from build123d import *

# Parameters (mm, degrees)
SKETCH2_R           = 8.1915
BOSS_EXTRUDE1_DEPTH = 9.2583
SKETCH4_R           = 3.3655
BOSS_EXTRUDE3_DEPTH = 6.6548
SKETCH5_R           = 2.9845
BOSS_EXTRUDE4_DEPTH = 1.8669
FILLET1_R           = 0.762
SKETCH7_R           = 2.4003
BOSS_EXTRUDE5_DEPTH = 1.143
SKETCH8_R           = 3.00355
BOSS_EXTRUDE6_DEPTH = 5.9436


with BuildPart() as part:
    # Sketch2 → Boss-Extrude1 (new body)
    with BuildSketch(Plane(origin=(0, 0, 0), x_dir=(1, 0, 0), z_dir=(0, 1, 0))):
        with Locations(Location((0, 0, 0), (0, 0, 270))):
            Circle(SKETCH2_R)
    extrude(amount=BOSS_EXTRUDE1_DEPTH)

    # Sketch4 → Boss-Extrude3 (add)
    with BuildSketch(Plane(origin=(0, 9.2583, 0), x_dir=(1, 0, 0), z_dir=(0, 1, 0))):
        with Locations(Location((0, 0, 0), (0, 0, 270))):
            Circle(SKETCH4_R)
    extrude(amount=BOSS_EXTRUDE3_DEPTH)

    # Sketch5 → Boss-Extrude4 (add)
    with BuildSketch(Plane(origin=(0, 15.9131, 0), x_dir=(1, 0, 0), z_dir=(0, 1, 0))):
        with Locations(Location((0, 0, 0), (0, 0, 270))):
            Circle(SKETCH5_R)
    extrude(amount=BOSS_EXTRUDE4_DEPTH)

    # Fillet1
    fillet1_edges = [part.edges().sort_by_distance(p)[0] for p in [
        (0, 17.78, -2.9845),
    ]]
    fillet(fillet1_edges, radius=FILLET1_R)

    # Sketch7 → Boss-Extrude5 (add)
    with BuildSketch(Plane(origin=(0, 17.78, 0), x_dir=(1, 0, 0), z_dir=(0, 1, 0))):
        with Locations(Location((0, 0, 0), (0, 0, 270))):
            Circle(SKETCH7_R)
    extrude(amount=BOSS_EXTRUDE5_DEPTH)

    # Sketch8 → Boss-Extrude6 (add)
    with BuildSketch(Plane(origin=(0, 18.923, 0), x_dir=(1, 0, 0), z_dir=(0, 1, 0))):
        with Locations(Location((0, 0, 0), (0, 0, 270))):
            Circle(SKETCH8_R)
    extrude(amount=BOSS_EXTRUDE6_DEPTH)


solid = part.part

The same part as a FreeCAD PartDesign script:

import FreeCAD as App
import Part
import Sketcher

V = App.Vector
Q = App.Units.Quantity


def edges_at(feature, points):
    """Names of the edges that pass closest to the given points."""
    edges = feature.Shape.Edges
    near = lambda p: min(range(len(edges)), key=lambda i: edges[i].distToShape(Part.Vertex(*p))[0])
    return sorted({f"Edge{near(p) + 1}" for p in points})

doc = App.newDocument("Part")
body = doc.addObject("PartDesign::Body", "Body")

# Sketch on XZ plane
sketch1 = doc.addObject("Sketcher::SketchObject", "Sketch")
body.addObject(sketch1)
sketch1.AttachmentSupport = (doc.XZ_Plane, [""])
sketch1.MapMode = "FlatFace"
sketch1.addGeometry(Part.Circle(V(0, 0, 0), V(0, 0, 1), 8.1915), False)
sketch1.addConstraint(Sketcher.Constraint("Coincident", 0, 3, -1, 1))
sketch1.addConstraint(Sketcher.Constraint("Diameter", 0, Q("0.645 in")))
pad1 = doc.addObject("PartDesign::Pad", "Pad")
body.addObject(pad1)
pad1.Profile = sketch1
pad1.Length = Q("0.3645 in")
pad1.Reversed = True

# Sketch on XZ plane
sketch2 = doc.addObject("Sketcher::SketchObject", "Sketch001")
body.addObject(sketch2)
sketch2.AttachmentSupport = (doc.XZ_Plane, [""])
sketch2.MapMode = "FlatFace"
sketch2.AttachmentOffset = App.Placement(V(0, 0, -0.3645 * 25.4), App.Rotation())
sketch2.addGeometry(Part.Circle(V(0, 0, 0), V(0, 0, 1), 3.3655), False)
sketch2.addConstraint(Sketcher.Constraint("Coincident", 0, 3, -1, 1))
sketch2.addConstraint(Sketcher.Constraint("Diameter", 0, Q("0.265 in")))
pad2 = doc.addObject("PartDesign::Pad", "Pad001")
body.addObject(pad2)
pad2.Profile = sketch2
pad2.Length = Q("0.262 in")
pad2.Reversed = True

# Sketch on XZ plane
sketch3 = doc.addObject("Sketcher::SketchObject", "Sketch002")
body.addObject(sketch3)
sketch3.AttachmentSupport = (doc.XZ_Plane, [""])
sketch3.MapMode = "FlatFace"
sketch3.AttachmentOffset = App.Placement(V(0, 0, -0.6265 * 25.4), App.Rotation())
sketch3.addGeometry(Part.Circle(V(0, 0, 0), V(0, 0, 1), 2.9845), False)
sketch3.addConstraint(Sketcher.Constraint("Coincident", 0, 3, -1, 1))
sketch3.addConstraint(Sketcher.Constraint("Diameter", 0, Q("0.235 in")))
pad3 = doc.addObject("PartDesign::Pad", "Pad002")
body.addObject(pad3)
pad3.Profile = sketch3
pad3.Length = Q("0.0735 in")
pad3.Reversed = True
doc.recompute()

fillet = doc.addObject("PartDesign::Fillet", "Fillet")
body.addObject(fillet)
fillet.Base = (pad3, edges_at(pad3, [(0, 17.78, -2.985)]))
fillet.Radius = Q("0.03 in")

# Sketch on XZ plane
sketch4 = doc.addObject("Sketcher::SketchObject", "Sketch003")
body.addObject(sketch4)
sketch4.AttachmentSupport = (doc.XZ_Plane, [""])
sketch4.MapMode = "FlatFace"
sketch4.AttachmentOffset = App.Placement(V(0, 0, -0.7 * 25.4), App.Rotation())
sketch4.addGeometry(Part.Circle(V(0, 0, 0), V(0, 0, 1), 2.4003), False)
sketch4.addConstraint(Sketcher.Constraint("Coincident", 0, 3, -1, 1))
sketch4.addConstraint(Sketcher.Constraint("Diameter", 0, Q("0.189 in")))
pad4 = doc.addObject("PartDesign::Pad", "Pad003")
body.addObject(pad4)
pad4.Profile = sketch4
pad4.Length = Q("0.045 in")
pad4.Reversed = True

# Sketch on XZ plane
sketch5 = doc.addObject("Sketcher::SketchObject", "Sketch004")
body.addObject(sketch5)
sketch5.AttachmentSupport = (doc.XZ_Plane, [""])
sketch5.MapMode = "FlatFace"
sketch5.AttachmentOffset = App.Placement(V(0, 0, -0.745 * 25.4), App.Rotation())
sketch5.addGeometry(Part.Circle(V(0, 0, 0), V(0, 0, 1), 3.00355), False)
sketch5.addConstraint(Sketcher.Constraint("Coincident", 0, 3, -1, 1))
sketch5.addConstraint(Sketcher.Constraint("Diameter", 0, Q("0.2365 in")))
pad5 = doc.addObject("PartDesign::Pad", "Pad004")
body.addObject(pad5)
pad5.Profile = sketch5
pad5.Length = Q("0.234 in")
pad5.Reversed = True

doc.recompute()
